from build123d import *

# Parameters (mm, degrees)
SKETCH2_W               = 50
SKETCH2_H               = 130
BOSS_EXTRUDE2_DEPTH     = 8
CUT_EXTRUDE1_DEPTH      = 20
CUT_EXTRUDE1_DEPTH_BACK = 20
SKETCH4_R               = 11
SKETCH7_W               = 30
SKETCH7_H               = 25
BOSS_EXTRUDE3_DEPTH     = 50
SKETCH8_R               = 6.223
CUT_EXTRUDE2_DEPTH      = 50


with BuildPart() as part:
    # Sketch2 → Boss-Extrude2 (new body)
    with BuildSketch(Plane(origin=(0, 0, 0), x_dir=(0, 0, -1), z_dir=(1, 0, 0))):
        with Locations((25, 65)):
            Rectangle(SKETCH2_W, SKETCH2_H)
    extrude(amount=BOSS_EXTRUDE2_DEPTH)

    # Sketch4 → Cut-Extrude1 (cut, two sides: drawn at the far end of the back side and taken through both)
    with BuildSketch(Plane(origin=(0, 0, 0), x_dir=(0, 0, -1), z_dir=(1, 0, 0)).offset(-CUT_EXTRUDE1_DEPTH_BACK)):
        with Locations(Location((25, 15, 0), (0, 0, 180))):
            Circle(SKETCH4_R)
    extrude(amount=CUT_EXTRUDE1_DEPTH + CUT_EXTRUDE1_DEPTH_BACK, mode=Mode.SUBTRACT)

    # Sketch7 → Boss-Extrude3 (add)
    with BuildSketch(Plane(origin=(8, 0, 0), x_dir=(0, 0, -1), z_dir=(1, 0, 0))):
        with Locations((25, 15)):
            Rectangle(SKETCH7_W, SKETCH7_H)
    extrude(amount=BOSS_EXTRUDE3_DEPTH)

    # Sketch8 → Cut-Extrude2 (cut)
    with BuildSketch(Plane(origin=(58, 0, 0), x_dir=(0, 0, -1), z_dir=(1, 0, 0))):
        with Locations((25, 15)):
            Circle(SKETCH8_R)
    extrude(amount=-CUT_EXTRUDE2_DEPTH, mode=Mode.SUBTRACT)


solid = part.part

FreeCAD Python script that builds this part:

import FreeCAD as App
import Part
import Sketcher


def add_polygon(sketch, points):
    """Adds a closed chain of lines whose ends are joined by coincident constraints."""
    first, n = sketch.GeometryCount, len(points)
    for a, b in zip(points, points[1:] + points[:1]):
        sketch.addGeometry(Part.LineSegment(App.Vector(*a, 0), App.Vector(*b, 0)), False)
    for i in range(n):
        sketch.addConstraint(Sketcher.Constraint("Coincident", first + i, 2, first + (i + 1) % n, 1))

doc = App.newDocument("Part")
params = doc.addObject("Spreadsheet::Sheet", "Params")
for row, (alias, value) in enumerate([
    ("sketch1_width", "130 mm"),
    ("sketch1_height", "50 mm"),
    ("pad1_length", "8 mm"),
    ("sketch2_diameter", "22 mm"),
    ("sketch3_width", "25 mm"),
    ("sketch3_height", "30 mm"),
    ("pad2_length", "50 mm"),
    ("pocket2_length", "50 mm"),
], start=1):
    params.set(f"A{row}", alias)
    params.set(f"B{row}", "=" + value)
    params.setAlias(f"B{row}", alias)

body = doc.addObject("PartDesign::Body", "Body")

# Sketch on YZ plane
sketch1 = doc.addObject("Sketcher::SketchObject", "Sketch")
body.addObject(sketch1)
sketch1.AttachmentSupport = (doc.YZ_Plane, [""])
sketch1.MapMode = "FlatFace"
add_polygon(sketch1, [(130, 0), (0, 0), (0, -50), (130, -50)])  # lines 0-3
sketch1.addConstraint([
    Sketcher.Constraint("Horizontal", 0),
    Sketcher.Constraint("Vertical", 1),
    Sketcher.Constraint("Horizontal", 2),
    Sketcher.Constraint("Vertical", 3),
    Sketcher.Constraint("Coincident", 0, 2, -1, 1),
    Sketcher.Constraint("DistanceX", 0, 2, 0, 1, 130.0),
    Sketcher.Constraint("DistanceY", 1, 2, 1, 1, 50.0),
])
sketch1.setExpression("Constraints[9]", "Params.sketch1_width")
sketch1.setExpression("Constraints[10]", "Params.sketch1_height")
pad1 = doc.addObject("PartDesign::Pad", "Pad")
body.addObject(pad1)
pad1.Profile = sketch1
pad1.setExpression("Length", "Params.pad1_length")

# Sketch on YZ plane
sketch2 = doc.addObject("Sketcher::SketchObject", "Sketch001")
body.addObject(sketch2)
sketch2.AttachmentSupport = (doc.YZ_Plane, [""])
sketch2.MapMode = "FlatFace"
sketch2.addGeometry(Part.Circle(App.Vector(15, -25, 0), App.Vector(0, 0, 1), 11), False)
sketch2.addConstraint([
    Sketcher.Constraint("Diameter", 0, 22.0),
    Sketcher.Constraint("DistanceX", -1, 1, 0, 3, 15.0),
    Sketcher.Constraint("DistanceY", 0, 3, -1, 1, 25.0),
])
sketch2.setExpression("Constraints[0]", "Params.sketch2_diameter")
pocket1 = doc.addObject("PartDesign::Pocket", "Pocket")
body.addObject(pocket1)
pocket1.Profile = sketch2
pocket1.Type = "ThroughAll"
pocket1.Midplane = True

# Sketch on YZ plane
sketch3 = doc.addObject("Sketcher::SketchObject", "Sketch002")
body.addObject(sketch3)
sketch3.AttachmentSupport = (doc.YZ_Plane, [""])
sketch3.MapMode = "FlatFace"
sketch3.AttachmentOffset = App.Placement(App.Vector(0, 0, 8), App.Rotation())
add_polygon(sketch3, [(27.5, -10), (2.5, -10), (2.5, -40), (27.5, -40)])  # lines 0-3
sketch3.addConstraint([
    Sketcher.Constraint("Horizontal", 0),
    Sketcher.Constraint("Vertical", 1),
    Sketcher.Constraint("Horizontal", 2),
    Sketcher.Constraint("Vertical", 3),
    Sketcher.Constraint("DistanceX", 0, 2, 0, 1, 25.0),
    Sketcher.Constraint("DistanceY", 1, 2, 1, 1, 30.0),
    Sketcher.Constraint("DistanceY", 0, 2, -1, 1, 10.0),
    Sketcher.Constraint("DistanceX", -1, 1, 0, 2, 2.5),
])
sketch3.setExpression("Constraints[8]", "Params.sketch3_width")
sketch3.setExpression("Constraints[9]", "Params.sketch3_height")
pad2 = doc.addObject("PartDesign::Pad", "Pad001")
body.addObject(pad2)
pad2.Profile = sketch3
pad2.setExpression("Length", "Params.pad2_length")

# Sketch on YZ plane
sketch4 = doc.addObject("Sketcher::SketchObject", "Sketch003")
body.addObject(sketch4)
sketch4.AttachmentSupport = (doc.YZ_Plane, [""])
sketch4.MapMode = "FlatFace"
sketch4.AttachmentOffset = App.Placement(App.Vector(0, 0, 58), App.Rotation())
sketch4.addGeometry(Part.Circle(App.Vector(15, -25, 0), App.Vector(0, 0, 1), 6.223), False)
sketch4.addConstraint([
    Sketcher.Constraint("Diameter", 0, 12.446),
    Sketcher.Constraint("DistanceX", -1, 1, 0, 3, 15.0),
    Sketcher.Constraint("DistanceY", 0, 3, -1, 1, 25.0),
])
pocket2 = doc.addObject("PartDesign::Pocket", "Pocket001")
body.addObject(pocket2)
pocket2.Profile = sketch4
pocket2.setExpression("Length", "Params.pocket2_length")

doc.recompute()
